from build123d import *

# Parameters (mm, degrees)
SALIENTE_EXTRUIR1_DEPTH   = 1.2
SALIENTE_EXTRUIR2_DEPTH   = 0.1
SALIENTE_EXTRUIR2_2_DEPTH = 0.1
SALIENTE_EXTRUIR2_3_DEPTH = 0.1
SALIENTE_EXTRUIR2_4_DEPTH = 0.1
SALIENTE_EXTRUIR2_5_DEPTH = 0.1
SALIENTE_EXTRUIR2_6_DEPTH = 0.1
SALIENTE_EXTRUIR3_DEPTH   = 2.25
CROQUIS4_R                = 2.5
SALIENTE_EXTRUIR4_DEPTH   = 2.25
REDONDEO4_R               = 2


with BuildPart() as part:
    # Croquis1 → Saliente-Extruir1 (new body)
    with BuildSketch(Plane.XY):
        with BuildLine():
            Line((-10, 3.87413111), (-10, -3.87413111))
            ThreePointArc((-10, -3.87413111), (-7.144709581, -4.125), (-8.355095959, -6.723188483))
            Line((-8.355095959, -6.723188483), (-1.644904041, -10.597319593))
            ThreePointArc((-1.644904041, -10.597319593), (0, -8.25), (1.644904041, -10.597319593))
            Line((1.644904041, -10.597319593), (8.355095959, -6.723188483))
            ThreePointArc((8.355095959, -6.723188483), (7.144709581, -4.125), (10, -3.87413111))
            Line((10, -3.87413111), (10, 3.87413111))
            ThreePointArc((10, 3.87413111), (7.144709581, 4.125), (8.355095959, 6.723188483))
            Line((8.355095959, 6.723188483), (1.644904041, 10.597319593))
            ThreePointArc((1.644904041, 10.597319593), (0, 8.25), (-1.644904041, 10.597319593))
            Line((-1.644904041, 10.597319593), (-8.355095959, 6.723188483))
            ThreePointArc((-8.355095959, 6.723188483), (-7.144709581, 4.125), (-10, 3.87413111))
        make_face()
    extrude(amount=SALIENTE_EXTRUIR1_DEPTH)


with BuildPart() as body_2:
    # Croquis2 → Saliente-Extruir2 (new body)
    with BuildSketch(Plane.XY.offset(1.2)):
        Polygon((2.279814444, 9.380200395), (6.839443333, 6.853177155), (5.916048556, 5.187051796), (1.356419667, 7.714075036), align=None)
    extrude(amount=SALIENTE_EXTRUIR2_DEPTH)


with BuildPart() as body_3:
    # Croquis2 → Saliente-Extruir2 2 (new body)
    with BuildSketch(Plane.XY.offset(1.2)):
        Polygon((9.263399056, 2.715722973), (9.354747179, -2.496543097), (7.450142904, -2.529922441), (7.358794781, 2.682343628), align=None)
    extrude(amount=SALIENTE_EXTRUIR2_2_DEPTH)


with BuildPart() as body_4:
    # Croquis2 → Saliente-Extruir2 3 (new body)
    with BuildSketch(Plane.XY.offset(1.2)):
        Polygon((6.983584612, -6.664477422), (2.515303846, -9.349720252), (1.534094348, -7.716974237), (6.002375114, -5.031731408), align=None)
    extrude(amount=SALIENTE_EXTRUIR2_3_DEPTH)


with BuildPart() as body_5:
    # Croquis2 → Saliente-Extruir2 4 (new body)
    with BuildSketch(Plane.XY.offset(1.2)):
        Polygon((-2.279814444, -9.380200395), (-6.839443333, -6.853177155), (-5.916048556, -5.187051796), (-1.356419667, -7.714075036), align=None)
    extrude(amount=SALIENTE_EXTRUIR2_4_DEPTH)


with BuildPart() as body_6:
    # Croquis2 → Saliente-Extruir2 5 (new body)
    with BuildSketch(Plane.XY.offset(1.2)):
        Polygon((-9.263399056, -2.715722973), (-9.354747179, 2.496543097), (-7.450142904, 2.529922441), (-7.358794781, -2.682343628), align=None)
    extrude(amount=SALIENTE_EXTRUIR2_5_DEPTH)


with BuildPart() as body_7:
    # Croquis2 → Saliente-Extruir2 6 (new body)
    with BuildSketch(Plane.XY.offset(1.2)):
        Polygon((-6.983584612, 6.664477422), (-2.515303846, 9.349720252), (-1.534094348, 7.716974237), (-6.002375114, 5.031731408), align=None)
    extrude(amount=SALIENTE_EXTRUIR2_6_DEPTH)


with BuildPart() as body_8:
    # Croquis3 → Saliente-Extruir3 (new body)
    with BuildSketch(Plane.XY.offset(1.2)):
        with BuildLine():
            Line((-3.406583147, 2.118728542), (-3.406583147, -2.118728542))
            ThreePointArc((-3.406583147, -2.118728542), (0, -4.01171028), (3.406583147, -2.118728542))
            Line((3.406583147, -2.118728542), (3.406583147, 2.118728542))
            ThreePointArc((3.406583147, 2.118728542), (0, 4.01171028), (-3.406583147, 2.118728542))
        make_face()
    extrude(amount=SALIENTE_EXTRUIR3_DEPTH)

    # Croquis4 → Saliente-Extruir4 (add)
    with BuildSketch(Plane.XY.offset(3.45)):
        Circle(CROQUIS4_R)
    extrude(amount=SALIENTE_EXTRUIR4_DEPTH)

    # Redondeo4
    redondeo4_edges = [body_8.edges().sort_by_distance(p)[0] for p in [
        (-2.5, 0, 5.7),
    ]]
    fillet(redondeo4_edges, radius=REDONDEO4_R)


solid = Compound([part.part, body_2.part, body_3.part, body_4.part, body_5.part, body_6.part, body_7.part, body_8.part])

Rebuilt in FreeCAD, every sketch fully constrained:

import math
import FreeCAD as App
import Part
import Sketcher
Q = App.Units.Quantity


def edges_at(feature, points):
    """Names of the edges that pass closest to the given points."""
    edges = feature.Shape.Edges
    near = lambda p: min(range(len(edges)), key=lambda i: edges[i].distToShape(Part.Vertex(*p))[0])
    return sorted({f"Edge{near(p) + 1}" for p in points})

doc = App.newDocument("Part")
body = doc.addObject("PartDesign::Body", "Body")

sketch1 = body.newObject("Sketcher::SketchObject", "Sketch")
sketch1.AttachmentSupport = (doc.getObject("XY_Plane"), [""])
sketch1.MapMode = "FlatFace"
sketch1.addGeometry(Part.LineSegment(App.Vector(-10, 3.874131, 0), App.Vector(-10, -3.874131, 0)), False)
sketch1.addGeometry(Part.ArcOfCircle(Part.Circle(App.Vector(-8.660254, -5, 0), App.Vector(0, 0, 1), 1.75), math.radians(-79.95765), math.radians(139.95765)), False)
sketch1.addGeometry(Part.LineSegment(App.Vector(-8.355096, -6.723188, 0), App.Vector(-1.644904, -10.59732, 0)), False)
sketch1.addGeometry(Part.ArcOfCircle(Part.Circle(App.Vector(0, -10, 0), App.Vector(0, 0, 1), 1.75), math.radians(-19.95765), math.radians(199.95765)), False)
sketch1.addGeometry(Part.LineSegment(App.Vector(1.644904, -10.59732, 0), App.Vector(8.355096, -6.723188, 0)), False)
sketch1.addGeometry(Part.ArcOfCircle(Part.Circle(App.Vector(8.660254, -5, 0), App.Vector(0, 0, 1), 1.75), math.radians(40.04235), math.radians(259.95765)), False)
sketch1.addGeometry(Part.LineSegment(App.Vector(10, -3.874131, 0), App.Vector(10, 3.874131, 0)), False)
sketch1.addGeometry(Part.ArcOfCircle(Part.Circle(App.Vector(8.660254, 5, 0), App.Vector(0, 0, 1), 1.75), math.radians(100.04235), math.radians(319.95765)), False)
sketch1.addGeometry(Part.LineSegment(App.Vector(8.355096, 6.723188, 0), App.Vector(1.644904, 10.59732, 0)), False)
sketch1.addGeometry(Part.ArcOfCircle(Part.Circle(App.Vector(0, 10, 0), App.Vector(0, 0, 1), 1.75), math.radians(160.04235), math.radians(379.95765)), False)
sketch1.addGeometry(Part.LineSegment(App.Vector(-1.644904, 10.59732, 0), App.Vector(-8.355096, 6.723188, 0)), False)
sketch1.addGeometry(Part.ArcOfCircle(Part.Circle(App.Vector(-8.660254, 5, 0), App.Vector(0, 0, 1), 1.75), math.radians(-139.95765), math.radians(79.95765)), False)
sketch1.addConstraint(Sketcher.Constraint("Coincident", 0, 2, 1, 2))
sketch1.addConstraint(Sketcher.Constraint("Coincident", 1, 1, 2, 1))
sketch1.addConstraint(Sketcher.Constraint("Coincident", 2, 2, 3, 2))
sketch1.addConstraint(Sketcher.Constraint("Coincident", 3, 1, 4, 1))
sketch1.addConstraint(Sketcher.Constraint("Coincident", 4, 2, 5, 2))
sketch1.addConstraint(Sketcher.Constraint("Coincident", 5, 1, 6, 1))
sketch1.addConstraint(Sketcher.Constraint("Coincident", 6, 2, 7, 2))
sketch1.addConstraint(Sketcher.Constraint("Coincident", 7, 1, 8, 1))
sketch1.addConstraint(Sketcher.Constraint("Coincident", 8, 2, 9, 2))
sketch1.addConstraint(Sketcher.Constraint("Coincident", 9, 1, 10, 1))
sketch1.addConstraint(Sketcher.Constraint("Coincident", 10, 2, 11, 2))
sketch1.addConstraint(Sketcher.Constraint("Coincident", 11, 1, 0, 1))
sketch1.addConstraint(Sketcher.Constraint("Vertical", 0))
sketch1.addConstraint(Sketcher.Constraint("Vertical", 6))
sketch1.addConstraint(Sketcher.Constraint("Equal", 1, 3))
sketch1.addConstraint(Sketcher.Constraint("Equal", 3, 5))
sketch1.addConstraint(Sketcher.Constraint("Equal", 5, 7))
sketch1.addConstraint(Sketcher.Constraint("Equal", 7, 9))
sketch1.addConstraint(Sketcher.Constraint("Equal", 9, 11))
sketch1.addConstraint(Sketcher.Constraint("Symmetric", 1, 3, 7, 3, -1, 1))
sketch1.addConstraint(Sketcher.Constraint("Symmetric", 3, 3, 9, 3, -1, 1))
sketch1.addConstraint(Sketcher.Constraint("Symmetric", 5, 3, 11, 3, -1, 1))
sketch1.addConstraint(Sketcher.Constraint("Symmetric", 1, 3, 5, 3, -2))
sketch1.addConstraint(Sketcher.Constraint("Symmetric", 2, 2, 3, 1, -2))
sketch1.addConstraint(Sketcher.Constraint("Parallel", 2, 8))
sketch1.addConstraint(Sketcher.Constraint("Parallel", 4, 10))
sketch1.addConstraint(Sketcher.Constraint("Horizontal", 1, 1, 4, 2))
sketch1.addConstraint(Sketcher.Constraint("Horizontal", 0, 2, 5, 1))
sketch1.addConstraint(Sketcher.Constraint("Horizontal", 8, 2, 9, 1))
sketch1.addConstraint(Sketcher.Constraint("Vertical", 4, 2, 7, 1))
sketch1.addConstraint(Sketcher.Constraint("Angle", 2, Q("-30 deg")))
sketch1.addConstraint(Sketcher.Constraint("Radius", 1, Q("1.75 mm")))
sketch1.addConstraint(Sketcher.Constraint("DistanceY", 1, 3, -1, 1, Q("5 mm")))
sketch1.addConstraint(Sketcher.Constraint("DistanceY", 3, 3, -1, 1, Q("10 mm")))
sketch1.addConstraint(Sketcher.Constraint("DistanceX", 0, 2, -1, 1, Q("10 mm")))
sketch1.addConstraint(Sketcher.Constraint("DistanceX", 1, 1, 3, 1, Q("10 mm")))
sketch1.addConstraint(Sketcher.Constraint("DistanceY", 0, 2, 0, 1, Q("7.748262 mm")))
pad1 = body.newObject("PartDesign::Pad", "Pad")
pad1.Profile = sketch1
pad1.Length = 1.2
body2 = doc.addObject("PartDesign::Body", "Body001")

sketch2 = body2.newObject("Sketcher::SketchObject", "Sketch001")
sketch2.AttachmentSupport = (doc.getObject("XY_Plane001"), [""])
sketch2.MapMode = "FlatFace"
sketch2.AttachmentOffset = App.Placement(App.Vector(0, 0, 1.2), App.Rotation())
sketch2.addGeometry(Part.LineSegment(App.Vector(6.839443, 6.853177, 0), App.Vector(2.279814, 9.3802, 0)), False)
sketch2.addGeometry(Part.LineSegment(App.Vector(2.279814, 9.3802, 0), App.Vector(1.35642, 7.714075, 0)), False)
sketch2.addGeometry(Part.LineSegment(App.Vector(1.35642, 7.714075, 0), App.Vector(5.916049, 5.187052, 0)), False)
sketch2.addGeometry(Part.LineSegment(App.Vector(5.916049, 5.187052, 0), App.Vector(6.839443, 6.853177, 0)), False)
sketch2.addConstraint(Sketcher.Constraint("Coincident", 0, 2, 1, 1))
sketch2.addConstraint(Sketcher.Constraint("Coincident", 1, 2, 2, 1))
sketch2.addConstraint(Sketcher.Constraint("Coincident", 2, 2, 3, 1))
sketch2.addConstraint(Sketcher.Constraint("Coincident", 3, 2, 0, 1))
sketch2.addConstraint(Sketcher.Constraint("Perpendicular", 0, 1))
sketch2.addConstraint(Sketcher.Constraint("Perpendicular", 1, 2))
sketch2.addConstraint(Sketcher.Constraint("Perpendicular", 2, 3))
sketch2.addConstraint(Sketcher.Constraint("DistanceY", -1, 1, 0, 2, Q("9.3802 mm")))
sketch2.addConstraint(Sketcher.Constraint("DistanceX", -1, 1, 1, 2, Q("1.35642 mm")))
sketch2.addConstraint(Sketcher.Constraint("DistanceX", -1, 1, 2, 2, Q("5.916049 mm")))
sketch2.addConstraint(Sketcher.Constraint("DistanceY", -1, 1, 2, 2, Q("5.187052 mm")))
sketch2.addConstraint(Sketcher.Constraint("Distance", 0, Q("5.213066 mm")))
pad2 = body2.newObject("PartDesign::Pad", "Pad001")
pad2.Profile = sketch2
pad2.Length = 0.1
body3 = doc.addObject("PartDesign::Body", "Body002")

sketch3 = body3.newObject("Sketcher::SketchObject", "Sketch002")
sketch3.AttachmentSupport = (doc.getObject("XY_Plane002"), [""])
sketch3.MapMode = "FlatFace"
sketch3.AttachmentOffset = App.Placement(App.Vector(0, 0, 1.2), App.Rotation())
sketch3.addGeometry(Part.LineSegment(App.Vector(9.354747, -2.496543, 0), App.Vector(9.263399, 2.715723, 0)), False)
sketch3.addGeometry(Part.LineSegment(App.Vector(9.263399, 2.715723, 0), App.Vector(7.358795, 2.682344, 0)), False)
sketch3.addGeometry(Part.LineSegment(App.Vector(7.358795, 2.682344, 0), App.Vector(7.450143, -2.529922, 0)), False)
sketch3.addGeometry(Part.LineSegment(App.Vector(7.450143, -2.529922, 0), App.Vector(9.354747, -2.496543, 0)), False)
sketch3.addConstraint(Sketcher.Constraint("Coincident", 0, 2, 1, 1))
sketch3.addConstraint(Sketcher.Constraint("Coincident", 1, 2, 2, 1))
sketch3.addConstraint(Sketcher.Constraint("Coincident", 2, 2, 3, 1))
sketch3.addConstraint(Sketcher.Constraint("Coincident", 3, 2, 0, 1))
sketch3.addConstraint(Sketcher.Constraint("Perpendicular", 0, 1))
sketch3.addConstraint(Sketcher.Constraint("Perpendicular", 1, 2))
sketch3.addConstraint(Sketcher.Constraint("Perpendicular", 2, 3))
sketch3.addConstraint(Sketcher.Constraint("DistanceX", -1, 1, 0, 2, Q("9.263399 mm")))
sketch3.addConstraint(Sketcher.Constraint("DistanceY", 1, 2, 0, 2, Q("0.033379 mm")))
sketch3.addConstraint(Sketcher.Constraint("DistanceX", 1, 2, 2, 2, Q("0.091348 mm")))
sketch3.addConstraint(Sketcher.Constraint("Distance", 0, Q("5.213066 mm")))
sketch3.addConstraint(Sketcher.Constraint("DistanceY", -1, 1, 0, 2, Q("2.715723 mm")))
pad3 = body3.newObject("PartDesign::Pad", "Pad002")
pad3.Profile = sketch3
pad3.Length = 0.1
body4 = doc.addObject("PartDesign::Body", "Body003")

sketch4 = body4.newObject("Sketcher::SketchObject", "Sketch003")
sketch4.AttachmentSupport = (doc.getObject("XY_Plane003"), [""])
sketch4.MapMode = "FlatFace"
sketch4.AttachmentOffset = App.Placement(App.Vector(0, 0, 1.2), App.Rotation())
sketch4.addGeometry(Part.LineSegment(App.Vector(2.515304, -9.34972, 0), App.Vector(6.983585, -6.664477, 0)), False)
sketch4.addGeometry(Part.LineSegment(App.Vector(6.983585, -6.664477, 0), App.Vector(6.002375, -5.031731, 0)), False)
sketch4.addGeometry(Part.LineSegment(App.Vector(6.002375, -5.031731, 0), App.Vector(1.534094, -7.716974, 0)), False)
sketch4.addGeometry(Part.LineSegment(App.Vector(1.534094, -7.716974, 0), App.Vector(2.515304, -9.34972, 0)), False)
sketch4.addConstraint(Sketcher.Constraint("Coincident", 0, 2, 1, 1))
sketch4.addConstraint(Sketcher.Constraint("Coincident", 1, 2, 2, 1))
sketch4.addConstraint(Sketcher.Constraint("Coincident", 2, 2, 3, 1))
sketch4.addConstraint(Sketcher.Constraint("Coincident", 3, 2, 0, 1))
sketch4.addConstraint(Sketcher.Constraint("Perpendicular", 0, 1))
sketch4.addConstraint(Sketcher.Constraint("Perpendicular", 1, 2))
sketch4.addConstraint(Sketcher.Constraint("Perpendicular", 2, 3))
sketch4.addConstraint(Sketcher.Constraint("DistanceY", 1, 2, -1, 1, Q("5.031731 mm")))
sketch4.addConstraint(Sketcher.Constraint("DistanceY", 3, 2, -1, 1, Q("9.34972 mm")))
sketch4.addConstraint(Sketcher.Constraint("DistanceX", 1, 2, 0, 2, Q("0.981209 mm")))
sketch4.addConstraint(Sketcher.Constraint("DistanceX", 2, 2, 1, 2, Q("4.468281 mm")))
sketch4.addConstraint(Sketcher.Constraint("DistanceX", -1, 1, 0, 2, Q("6.983585 mm")))
pad4 = body4.newObject("PartDesign::Pad", "Pad003")
pad4.Profile = sketch4
pad4.Length = 0.1
body5 = doc.addObject("PartDesign::Body", "Body004")

sketch5 = body5.newObject("Sketcher::SketchObject", "Sketch004")
sketch5.AttachmentSupport = (doc.getObject("XY_Plane004"), [""])
sketch5.MapMode = "FlatFace"
sketch5.AttachmentOffset = App.Placement(App.Vector(0, 0, 1.2), App.Rotation())
sketch5.addGeometry(Part.LineSegment(App.Vector(-6.839443, -6.853177, 0), App.Vector(-2.279814, -9.3802, 0)), False)
sketch5.addGeometry(Part.LineSegment(App.Vector(-2.279814, -9.3802, 0), App.Vector(-1.35642, -7.714075, 0)), False)
sketch5.addGeometry(Part.LineSegment(App.Vector(-1.35642, -7.714075, 0), App.Vector(-5.916049, -5.187052, 0)), False)
sketch5.addGeometry(Part.LineSegment(App.Vector(-5.916049, -5.187052, 0), App.Vector(-6.839443, -6.853177, 0)), False)
sketch5.addConstraint(Sketcher.Constraint("Coincident", 0, 2, 1, 1))
sketch5.addConstraint(Sketcher.Constraint("Coincident", 1, 2, 2, 1))
sketch5.addConstraint(Sketcher.Constraint("Coincident", 2, 2, 3, 1))
sketch5.addConstraint(Sketcher.Constraint("Coincident", 3, 2, 0, 1))
sketch5.addConstraint(Sketcher.Constraint("Perpendicular", 0, 1))
sketch5.addConstraint(Sketcher.Constraint("Perpendicular", 1, 2))
sketch5.addConstraint(Sketcher.Constraint("Perpendicular", 2, 3))
sketch5.addConstraint(Sketcher.Constraint("DistanceY", 0, 2, -1, 1, Q("9.3802 mm")))
sketch5.addConstraint(Sketcher.Constraint("DistanceX", 1, 2, -1, 1, Q("1.35642 mm")))
sketch5.addConstraint(Sketcher.Constraint("DistanceX", 2, 2, -1, 1, Q("5.916049 mm")))
sketch5.addConstraint(Sketcher.Constraint("DistanceY", 2, 2, -1, 1, Q("5.187052 mm")))
sketch5.addConstraint(Sketcher.Constraint("Distance", 0, Q("5.213066 mm")))
pad5 = body5.newObject("PartDesign::Pad", "Pad004")
pad5.Profile = sketch5
pad5.Length = 0.1
body6 = doc.addObject("PartDesign::Body", "Body005")

sketch6 = body6.newObject("Sketcher::SketchObject", "Sketch005")
sketch6.AttachmentSupport = (doc.getObject("XY_Plane005"), [""])
sketch6.MapMode = "FlatFace"
sketch6.AttachmentOffset = App.Placement(App.Vector(0, 0, 1.2), App.Rotation())
sketch6.addGeometry(Part.LineSegment(App.Vector(-9.354747, 2.496543, 0), App.Vector(-9.263399, -2.715723, 0)), False)
sketch6.addGeometry(Part.LineSegment(App.Vector(-9.263399, -2.715723, 0), App.Vector(-7.358795, -2.682344, 0)), False)
sketch6.addGeometry(Part.LineSegment(App.Vector(-7.358795, -2.682344, 0), App.Vector(-7.450143, 2.529922, 0)), False)
sketch6.addGeometry(Part.LineSegment(App.Vector(-7.450143, 2.529922, 0), App.Vector(-9.354747, 2.496543, 0)), False)
sketch6.addConstraint(Sketcher.Constraint("Coincident", 0, 2, 1, 1))
sketch6.addConstraint(Sketcher.Constraint("Coincident", 1, 2, 2, 1))
sketch6.addConstraint(Sketcher.Constraint("Coincident", 2, 2, 3, 1))
sketch6.addConstraint(Sketcher.Constraint("Coincident", 3, 2, 0, 1))
sketch6.addConstraint(Sketcher.Constraint("Perpendicular", 0, 1))
sketch6.addConstraint(Sketcher.Constraint("Perpendicular", 1, 2))
sketch6.addConstraint(Sketcher.Constraint("Perpendicular", 2, 3))
sketch6.addConstraint(Sketcher.Constraint("DistanceX", 0, 2, -1, 1, Q("9.263399 mm")))
sketch6.addConstraint(Sketcher.Constraint("DistanceY", 0, 2, 1, 2, Q("0.033379 mm")))
sketch6.addConstraint(Sketcher.Constraint("DistanceX", 2, 2, 1, 2, Q("0.091348 mm")))
sketch6.addConstraint(Sketcher.Constraint("Distance", 0, Q("5.213066 mm")))
sketch6.addConstraint(Sketcher.Constraint("DistanceY", 0, 2, -1, 1, Q("2.715723 mm")))
pad6 = body6.newObject("PartDesign::Pad", "Pad005")
pad6.Profile = sketch6
pad6.Length = 0.1
body7 = doc.addObject("PartDesign::Body", "Body006")

sketch7 = body7.newObject("Sketcher::SketchObject", "Sketch006")
sketch7.AttachmentSupport = (doc.getObject("XY_Plane006"), [""])
sketch7.MapMode = "FlatFace"
sketch7.AttachmentOffset = App.Placement(App.Vector(0, 0, 1.2), App.Rotation())
sketch7.addGeometry(Part.LineSegment(App.Vector(-2.515304, 9.34972, 0), App.Vector(-6.983585, 6.664477, 0)), False)
sketch7.addGeometry(Part.LineSegment(App.Vector(-6.983585, 6.664477, 0), App.Vector(-6.002375, 5.031731, 0)), False)
sketch7.addGeometry(Part.LineSegment(App.Vector(-6.002375, 5.031731, 0), App.Vector(-1.534094, 7.716974, 0)), False)
sketch7.addGeometry(Part.LineSegment(App.Vector(-1.534094, 7.716974, 0), App.Vector(-2.515304, 9.34972, 0)), False)
sketch7.addConstraint(Sketcher.Constraint("Coincident", 0, 2, 1, 1))
sketch7.addConstraint(Sketcher.Constraint("Coincident", 1, 2, 2, 1))
sketch7.addConstraint(Sketcher.Constraint("Coincident", 2, 2, 3, 1))
sketch7.addConstraint(Sketcher.Constraint("Coincident", 3, 2, 0, 1))
sketch7.addConstraint(Sketcher.Constraint("Perpendicular", 0, 1))
sketch7.addConstraint(Sketcher.Constraint("Perpendicular", 1, 2))
sketch7.addConstraint(Sketcher.Constraint("Perpendicular", 2, 3))
sketch7.addConstraint(Sketcher.Constraint("DistanceY", -1, 1, 1, 2, Q("5.031731 mm")))
sketch7.addConstraint(Sketcher.Constraint("DistanceY", -1, 1, 3, 2, Q("9.34972 mm")))
sketch7.addConstraint(Sketcher.Constraint("DistanceX", 0, 2, 1, 2, Q("0.981209 mm")))
sketch7.addConstraint(Sketcher.Constraint("DistanceX", 1, 2, 2, 2, Q("4.468281 mm")))
sketch7.addConstraint(Sketcher.Constraint("DistanceX", 0, 2, -1, 1, Q("6.983585 mm")))
pad7 = body7.newObject("PartDesign::Pad", "Pad006")
pad7.Profile = sketch7
pad7.Length = 0.1
body8 = doc.addObject("PartDesign::Body", "Body007")

sketch8 = body8.newObject("Sketcher::SketchObject", "Sketch007")
sketch8.AttachmentSupport = (doc.getObject("XY_Plane007"), [""])
sketch8.MapMode = "FlatFace"
sketch8.AttachmentOffset = App.Placement(App.Vector(0, 0, 1.2), App.Rotation())
sketch8.addGeometry(Part.LineSegment(App.Vector(-3.406583, 2.118729, 0), App.Vector(-3.406583, -2.118729, 0)), False)
sketch8.addGeometry(Part.ArcOfCircle(Part.Circle(App.Vector(0, 0, 0), App.Vector(0, 0, 1), 4.01171), math.radians(-148.120403), math.radians(-31.879597)), False)
sketch8.addGeometry(Part.LineSegment(App.Vector(3.406583, -2.118729, 0), App.Vector(3.406583, 2.118729, 0)), False)
sketch8.addGeometry(Part.ArcOfCircle(Part.Circle(App.Vector(0, 0, 0), App.Vector(0, 0, 1), 4.01171), math.radians(31.879597), math.radians(148.120403)), False)
sketch8.addConstraint(Sketcher.Constraint("Coincident", 0, 2, 1, 1))
sketch8.addConstraint(Sketcher.Constraint("Coincident", 1, 2, 2, 1))
sketch8.addConstraint(Sketcher.Constraint("Coincident", 2, 2, 3, 1))
sketch8.addConstraint(Sketcher.Constraint("Coincident", 3, 2, 0, 1))
sketch8.addConstraint(Sketcher.Constraint("Vertical", 0))
sketch8.addConstraint(Sketcher.Constraint("Vertical", 2))
sketch8.addConstraint(Sketcher.Constraint("Coincident", 1, 3, -1, 1))
sketch8.addConstraint(Sketcher.Constraint("Coincident", 3, 3, -1, 1))
sketch8.addConstraint(Sketcher.Constraint("Equal", 1, 3))
sketch8.addConstraint(Sketcher.Constraint("Horizontal", 0, 2, 1, 2))
sketch8.addConstraint(Sketcher.Constraint("Radius", 1, Q("4.01171 mm")))
sketch8.addConstraint(Sketcher.Constraint("DistanceY", 0, 2, 0, 1, Q("4.237457 mm")))
pad8 = body8.newObject("PartDesign::Pad", "Pad007")
pad8.Profile = sketch8
pad8.Length = 2.25

sketch9 = body8.newObject("Sketcher::SketchObject", "Sketch008")
sketch9.AttachmentSupport = (doc.getObject("XY_Plane007"), [""])
sketch9.MapMode = "FlatFace"
sketch9.AttachmentOffset = App.Placement(App.Vector(0, 0, 3.45), App.Rotation())
sketch9.addGeometry(Part.Circle(App.Vector(0, 0, 0), App.Vector(0, 0, 1), 2.5), False)
sketch9.addConstraint(Sketcher.Constraint("Coincident", 0, 3, -1, 1))
sketch9.addConstraint(Sketcher.Constraint("Diameter", 0, Q("5 mm")))
pad9 = body8.newObject("PartDesign::Pad", "Pad008")
pad9.Profile = sketch9
pad9.Length = 2.25
doc.recompute()

fillet = body8.newObject("PartDesign::Fillet", "Fillet")
fillet.Base = (pad9, edges_at(pad9, [(-2.5, 0, 5.7)]))
fillet.Radius = 2

doc.recompute()
